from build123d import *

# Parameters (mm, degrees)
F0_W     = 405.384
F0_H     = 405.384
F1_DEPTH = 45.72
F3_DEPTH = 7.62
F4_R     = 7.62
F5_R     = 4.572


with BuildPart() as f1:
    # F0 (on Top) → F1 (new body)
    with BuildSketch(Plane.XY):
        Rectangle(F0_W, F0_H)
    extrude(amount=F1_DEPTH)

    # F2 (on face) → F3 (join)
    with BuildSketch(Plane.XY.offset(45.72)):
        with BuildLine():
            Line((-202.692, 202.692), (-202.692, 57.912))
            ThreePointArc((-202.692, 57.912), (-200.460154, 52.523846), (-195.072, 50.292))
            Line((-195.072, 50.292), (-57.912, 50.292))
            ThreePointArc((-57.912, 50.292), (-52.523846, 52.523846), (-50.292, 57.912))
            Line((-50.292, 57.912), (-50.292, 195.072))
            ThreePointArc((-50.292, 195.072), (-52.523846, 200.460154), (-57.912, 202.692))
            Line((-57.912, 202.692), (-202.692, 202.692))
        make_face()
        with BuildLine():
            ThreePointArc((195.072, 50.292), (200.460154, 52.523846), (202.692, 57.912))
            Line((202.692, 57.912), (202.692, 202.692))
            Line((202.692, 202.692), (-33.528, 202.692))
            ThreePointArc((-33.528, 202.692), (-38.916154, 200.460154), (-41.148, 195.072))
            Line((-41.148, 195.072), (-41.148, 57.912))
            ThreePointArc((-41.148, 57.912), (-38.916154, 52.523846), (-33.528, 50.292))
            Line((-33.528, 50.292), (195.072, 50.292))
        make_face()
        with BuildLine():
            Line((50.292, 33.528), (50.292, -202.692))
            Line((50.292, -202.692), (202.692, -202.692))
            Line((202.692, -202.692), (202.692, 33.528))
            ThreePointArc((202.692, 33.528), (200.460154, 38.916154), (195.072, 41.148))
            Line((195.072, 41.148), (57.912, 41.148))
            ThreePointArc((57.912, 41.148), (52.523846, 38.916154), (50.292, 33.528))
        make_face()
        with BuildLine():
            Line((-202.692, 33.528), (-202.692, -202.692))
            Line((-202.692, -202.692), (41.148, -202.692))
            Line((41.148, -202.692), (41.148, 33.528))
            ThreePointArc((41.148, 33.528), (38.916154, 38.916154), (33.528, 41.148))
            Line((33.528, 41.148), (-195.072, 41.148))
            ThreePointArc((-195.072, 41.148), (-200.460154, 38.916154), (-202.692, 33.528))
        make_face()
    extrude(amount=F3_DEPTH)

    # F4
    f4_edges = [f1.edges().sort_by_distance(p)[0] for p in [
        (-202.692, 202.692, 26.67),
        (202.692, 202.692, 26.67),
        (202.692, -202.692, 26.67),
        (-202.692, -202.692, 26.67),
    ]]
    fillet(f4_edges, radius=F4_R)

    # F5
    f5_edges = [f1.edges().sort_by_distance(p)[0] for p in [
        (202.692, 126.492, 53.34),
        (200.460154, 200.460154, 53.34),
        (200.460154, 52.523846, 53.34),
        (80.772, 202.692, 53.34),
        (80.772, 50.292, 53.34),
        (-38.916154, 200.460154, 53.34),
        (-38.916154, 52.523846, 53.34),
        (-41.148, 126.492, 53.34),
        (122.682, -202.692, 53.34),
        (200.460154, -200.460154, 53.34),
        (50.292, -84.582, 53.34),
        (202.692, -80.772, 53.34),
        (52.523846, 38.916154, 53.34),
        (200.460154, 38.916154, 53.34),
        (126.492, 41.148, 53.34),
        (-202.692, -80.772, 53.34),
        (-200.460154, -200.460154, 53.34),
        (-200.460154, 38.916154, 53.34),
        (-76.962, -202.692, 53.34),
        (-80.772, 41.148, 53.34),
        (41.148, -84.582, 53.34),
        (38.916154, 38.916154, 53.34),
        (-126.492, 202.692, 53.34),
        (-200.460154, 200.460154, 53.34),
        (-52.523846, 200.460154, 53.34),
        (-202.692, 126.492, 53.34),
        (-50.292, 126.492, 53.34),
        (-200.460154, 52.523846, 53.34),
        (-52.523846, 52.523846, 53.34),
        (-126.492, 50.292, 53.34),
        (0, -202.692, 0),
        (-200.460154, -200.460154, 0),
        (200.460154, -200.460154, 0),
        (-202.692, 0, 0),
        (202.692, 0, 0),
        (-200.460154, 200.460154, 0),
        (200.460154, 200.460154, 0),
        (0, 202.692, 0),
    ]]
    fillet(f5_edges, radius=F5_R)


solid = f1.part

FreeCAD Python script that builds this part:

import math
import FreeCAD as App
import Part
import Sketcher
Q = App.Units.Quantity


def edges_at(feature, points):
    """Names of the edges that pass closest to the given points."""
    edges = feature.Shape.Edges
    near = lambda p: min(range(len(edges)), key=lambda i: edges[i].distToShape(Part.Vertex(*p))[0])
    return sorted({f"Edge{near(p) + 1}" for p in points})


def add_polygon(sketch, points):
    """Adds a closed chain of lines whose ends are joined by coincident constraints."""
    first, n = sketch.GeometryCount, len(points)
    for a, b in zip(points, points[1:] + points[:1]):
        sketch.addGeometry(Part.LineSegment(App.Vector(*a, 0), App.Vector(*b, 0)), False)
    for i in range(n):
        sketch.addConstraint(Sketcher.Constraint("Coincident", first + i, 2, first + (i + 1) % n, 1))

doc = App.newDocument("Part")
body = doc.addObject("PartDesign::Body", "Body")

sketch1 = body.newObject("Sketcher::SketchObject", "Sketch")
sketch1.AttachmentSupport = (doc.getObject("XY_Plane"), [""])
sketch1.MapMode = "FlatFace"
add_polygon(sketch1, [(-202.692, 202.692), (-202.692, -202.692), (202.692, -202.692), (202.692, 202.692)])
sketch1.addConstraint([
    Sketcher.Constraint("Vertical", 0),
    Sketcher.Constraint("Horizontal", 1),
    Sketcher.Constraint("Vertical", 2),
    Sketcher.Constraint("Horizontal", 3),
    Sketcher.Constraint("Symmetric", 0, 2, 2, 2, -1, 1),
    Sketcher.Constraint("Equal", 3, 0),
    Sketcher.Constraint("DistanceX", 1, 1, 1, 2, Q("15.96 in")),
])
pad1 = body.newObject("PartDesign::Pad", "Pad")
pad1.Profile = sketch1
pad1.Length = Q("1.8 in")

sketch2 = body.newObject("Sketcher::SketchObject", "Sketch001")
sketch2.AttachmentSupport = (doc.getObject("XY_Plane"), [""])
sketch2.MapMode = "FlatFace"
sketch2.AttachmentOffset = App.Placement(App.Vector(0, 0, 1.8 * 25.4), App.Rotation())
sketch2.addGeometry([
    Part.LineSegment(App.Vector(-202.692, 202.692, 0), App.Vector(-202.692, 57.912, 0)),
    Part.ArcOfCircle(Part.Circle(App.Vector(-195.072001, 57.911999, 0), App.Vector(0, 0, 1), 7.619999), math.radians(179.999992), math.radians(270.000008)),
    Part.LineSegment(App.Vector(-195.072, 50.292, 0), App.Vector(-57.912, 50.292, 0)),
    Part.ArcOfCircle(Part.Circle(App.Vector(-57.911999, 57.911999, 0), App.Vector(0, 0, 1), 7.619999), math.radians(-90.000008), math.radians(0.000008)),
    Part.LineSegment(App.Vector(-50.292, 57.912, 0), App.Vector(-50.292, 195.072, 0)),
    Part.ArcOfCircle(Part.Circle(App.Vector(-57.911999, 195.072001, 0), App.Vector(0, 0, 1), 7.619999), math.radians(-0.000008), math.radians(90.000008)),
    Part.LineSegment(App.Vector(-57.912, 202.692, 0), App.Vector(-202.692, 202.692, 0)),
    Part.ArcOfCircle(Part.Circle(App.Vector(195.072001, 57.911999, 0), App.Vector(0, 0, 1), 7.619999), math.radians(-90.000008), math.radians(0.000008)),
    Part.LineSegment(App.Vector(202.692, 57.912, 0), App.Vector(202.692, 202.692, 0)),
    Part.LineSegment(App.Vector(202.692, 202.692, 0), App.Vector(-33.528, 202.692, 0)),
    Part.ArcOfCircle(Part.Circle(App.Vector(-33.528001, 195.072001, 0), App.Vector(0, 0, 1), 7.619999), math.radians(89.999992), math.radians(180.000008)),
    Part.LineSegment(App.Vector(-41.148, 195.072, 0), App.Vector(-41.148, 57.912, 0)),
    Part.ArcOfCircle(Part.Circle(App.Vector(-33.528001, 57.911999, 0), App.Vector(0, 0, 1), 7.619999), math.radians(179.999992), math.radians(270.000008)),
    Part.LineSegment(App.Vector(-33.528, 50.292, 0), App.Vector(195.072, 50.292, 0)),
    Part.LineSegment(App.Vector(50.292, 33.528, 0), App.Vector(50.292, -202.692, 0)),
    Part.LineSegment(App.Vector(50.292, -202.692, 0), App.Vector(202.692, -202.692, 0)),
    Part.LineSegment(App.Vector(202.692, -202.692, 0), App.Vector(202.692, 33.528, 0)),
    Part.ArcOfCircle(Part.Circle(App.Vector(195.072001, 33.528001, 0), App.Vector(0, 0, 1), 7.619999), math.radians(-0.000008), math.radians(90.000008)),
    Part.LineSegment(App.Vector(195.072, 41.148, 0), App.Vector(57.912, 41.148, 0)),
    Part.ArcOfCircle(Part.Circle(App.Vector(57.911999, 33.528001, 0), App.Vector(0, 0, 1), 7.619999), math.radians(89.999992), math.radians(180.000008)),
    Part.LineSegment(App.Vector(-202.692, 33.528, 0), App.Vector(-202.692, -202.692, 0)),
    Part.LineSegment(App.Vector(-202.692, -202.692, 0), App.Vector(41.148, -202.692, 0)),
    Part.LineSegment(App.Vector(41.148, -202.692, 0), App.Vector(41.148, 33.528, 0)),
    Part.ArcOfCircle(Part.Circle(App.Vector(33.528001, 33.528001, 0), App.Vector(0, 0, 1), 7.619999), math.radians(-0.000008), math.radians(90.000008)),
    Part.LineSegment(App.Vector(33.528, 41.148, 0), App.Vector(-195.072, 41.148, 0)),
    Part.ArcOfCircle(Part.Circle(App.Vector(-195.072001, 33.528001, 0), App.Vector(0, 0, 1), 7.619999), math.radians(89.999992), math.radians(180.000008)),
], False)
sketch2.addConstraint([
    Sketcher.Constraint("Tangent", 0, 2, 1, 1),
    Sketcher.Constraint("Tangent", 1, 2, 2, 1),
    Sketcher.Constraint("Tangent", 2, 2, 3, 1),
    Sketcher.Constraint("Tangent", 3, 2, 4, 1),
    Sketcher.Constraint("Tangent", 4, 2, 5, 1),
    Sketcher.Constraint("Tangent", 5, 2, 6, 1),
    Sketcher.Constraint("Coincident", 6, 2, 0, 1),
    Sketcher.Constraint("Tangent", 7, 2, 8, 1),
    Sketcher.Constraint("Coincident", 8, 2, 9, 1),
    Sketcher.Constraint("Tangent", 9, 2, 10, 1),
    Sketcher.Constraint("Tangent", 10, 2, 11, 1),
    Sketcher.Constraint("Tangent", 11, 2, 12, 1),
    Sketcher.Constraint("Tangent", 12, 2, 13, 1),
    Sketcher.Constraint("Tangent", 13, 2, 7, 1),
    Sketcher.Constraint("Coincident", 14, 2, 15, 1),
    Sketcher.Constraint("Coincident", 15, 2, 16, 1),
    Sketcher.Constraint("Tangent", 16, 2, 17, 1),
    Sketcher.Constraint("Tangent", 17, 2, 18, 1),
    Sketcher.Constraint("Tangent", 18, 2, 19, 1),
    Sketcher.Constraint("Tangent", 19, 2, 14, 1),
    Sketcher.Constraint("Coincident", 20, 2, 21, 1),
    Sketcher.Constraint("Coincident", 21, 2, 22, 1),
    Sketcher.Constraint("Tangent", 22, 2, 23, 1),
    Sketcher.Constraint("Tangent", 23, 2, 24, 1),
    Sketcher.Constraint("Tangent", 24, 2, 25, 1),
    Sketcher.Constraint("Tangent", 25, 2, 20, 1),
    Sketcher.Constraint("Vertical", 0),
    Sketcher.Constraint("Horizontal", 2),
    Sketcher.Constraint("Vertical", 4),
    Sketcher.Constraint("Horizontal", 6),
    Sketcher.Constraint("Vertical", 8),
    Sketcher.Constraint("Horizontal", 9),
    Sketcher.Constraint("Vertical", 11),
    Sketcher.Constraint("Horizontal", 13),
    Sketcher.Constraint("Vertical", 14),
    Sketcher.Constraint("Horizontal", 15),
    Sketcher.Constraint("Vertical", 16),
    Sketcher.Constraint("Horizontal", 18),
    Sketcher.Constraint("Vertical", 20),
    Sketcher.Constraint("Horizontal", 21),
    Sketcher.Constraint("Vertical", 22),
    Sketcher.Constraint("Horizontal", 24),
    Sketcher.Constraint("Equal", 1, 3),
    Sketcher.Constraint("Equal", 3, 5),
    Sketcher.Constraint("Equal", 5, 7),
    Sketcher.Constraint("Equal", 7, 10),
    Sketcher.Constraint("Equal", 10, 12),
    Sketcher.Constraint("Equal", 12, 17),
    Sketcher.Constraint("Equal", 17, 19),
    Sketcher.Constraint("Equal", 19, 23),
    Sketcher.Constraint("Equal", 23, 25),
    Sketcher.Constraint("Symmetric", 6, 2, 15, 2, -1, 1),
    Sketcher.Constraint("Symmetric", 8, 2, 20, 2, -1, 1),
    Sketcher.Constraint("Symmetric", 1, 3, 7, 3, -2),
    Sketcher.Constraint("Horizontal", 5, 3, 10, 3),
    Sketcher.Constraint("Horizontal", 19, 3, 23, 3),
    Sketcher.Constraint("Equal", 2, 18),
    Sketcher.Constraint("Equal", 13, 24),
    Sketcher.Constraint("Equal", 6, 0),
    Sketcher.Constraint("Equal", 9, 14),
    Sketcher.Constraint("Radius", 1, Q("0.3 in")),
    Sketcher.Constraint("DistanceX", 13, 1, 13, 2, Q("9 in")),
    Sketcher.Constraint("DistanceX", 15, 1, 15, 2, Q("6 in")),
    Sketcher.Constraint("DistanceX", 1, 3, -1, 1, Q("7.68 in")),
    Sketcher.Constraint("DistanceY", -1, 1, 1, 3, Q("2.28 in")),
])
pad2 = body.newObject("PartDesign::Pad", "Pad001")
pad2.Profile = sketch2
pad2.Length = Q("0.3 in")
doc.recompute()

fillet = body.newObject("PartDesign::Fillet", "Fillet")
fillet.Base = (pad2, edges_at(pad2, [
    (-202.692, 202.692, 26.67),
    (202.692, 202.692, 26.67),
    (202.692, -202.692, 26.67),
    (-202.692, -202.692, 26.67),
]))
fillet.Radius = Q("0.3 in")
doc.recompute()

fillet2 = body.newObject("PartDesign::Fillet", "Fillet001")
fillet2.Base = (fillet, edges_at(fillet, [
    (202.692, 126.492, 53.34),
    (200.46, 200.46, 53.34),
    (200.46, 52.524, 53.34),
    (80.772, 202.692, 53.34),
    (80.772, 50.292, 53.34),
    (-38.916, 200.46, 53.34),
    (-38.916, 52.524, 53.34),
    (-41.148, 126.492, 53.34),
    (122.682, -202.692, 53.34),
    (200.46, -200.46, 53.34),
    (50.292, -84.582, 53.34),
    (202.692, -80.772, 53.34),
    (52.524, 38.916, 53.34),
    (200.46, 38.916, 53.34),
    (126.492, 41.148, 53.34),
    (-202.692, -80.772, 53.34),
    (-200.46, -200.46, 53.34),
    (-200.46, 38.916, 53.34),
    (-76.962, -202.692, 53.34),
    (-80.772, 41.148, 53.34),
    (41.148, -84.582, 53.34),
    (38.916, 38.916, 53.34),
    (-126.492, 202.692, 53.34),
    (-200.46, 200.46, 53.34),
    (-52.524, 200.46, 53.34),
    (-202.692, 126.492, 53.34),
    (-50.292, 126.492, 53.34),
    (-200.46, 52.524, 53.34),
    (-52.524, 52.524, 53.34),
    (-126.492, 50.292, 53.34),
    (0, -202.692, 0),
    (-200.46, -200.46, 0),
    (200.46, -200.46, 0),
    (-202.692, 0, 0),
    (202.692, 0, 0),
    (-200.46, 200.46, 0),
    (200.46, 200.46, 0),
    (0, 202.692, 0),
]))
fillet2.Radius = Q("0.18 in")

doc.recompute()
